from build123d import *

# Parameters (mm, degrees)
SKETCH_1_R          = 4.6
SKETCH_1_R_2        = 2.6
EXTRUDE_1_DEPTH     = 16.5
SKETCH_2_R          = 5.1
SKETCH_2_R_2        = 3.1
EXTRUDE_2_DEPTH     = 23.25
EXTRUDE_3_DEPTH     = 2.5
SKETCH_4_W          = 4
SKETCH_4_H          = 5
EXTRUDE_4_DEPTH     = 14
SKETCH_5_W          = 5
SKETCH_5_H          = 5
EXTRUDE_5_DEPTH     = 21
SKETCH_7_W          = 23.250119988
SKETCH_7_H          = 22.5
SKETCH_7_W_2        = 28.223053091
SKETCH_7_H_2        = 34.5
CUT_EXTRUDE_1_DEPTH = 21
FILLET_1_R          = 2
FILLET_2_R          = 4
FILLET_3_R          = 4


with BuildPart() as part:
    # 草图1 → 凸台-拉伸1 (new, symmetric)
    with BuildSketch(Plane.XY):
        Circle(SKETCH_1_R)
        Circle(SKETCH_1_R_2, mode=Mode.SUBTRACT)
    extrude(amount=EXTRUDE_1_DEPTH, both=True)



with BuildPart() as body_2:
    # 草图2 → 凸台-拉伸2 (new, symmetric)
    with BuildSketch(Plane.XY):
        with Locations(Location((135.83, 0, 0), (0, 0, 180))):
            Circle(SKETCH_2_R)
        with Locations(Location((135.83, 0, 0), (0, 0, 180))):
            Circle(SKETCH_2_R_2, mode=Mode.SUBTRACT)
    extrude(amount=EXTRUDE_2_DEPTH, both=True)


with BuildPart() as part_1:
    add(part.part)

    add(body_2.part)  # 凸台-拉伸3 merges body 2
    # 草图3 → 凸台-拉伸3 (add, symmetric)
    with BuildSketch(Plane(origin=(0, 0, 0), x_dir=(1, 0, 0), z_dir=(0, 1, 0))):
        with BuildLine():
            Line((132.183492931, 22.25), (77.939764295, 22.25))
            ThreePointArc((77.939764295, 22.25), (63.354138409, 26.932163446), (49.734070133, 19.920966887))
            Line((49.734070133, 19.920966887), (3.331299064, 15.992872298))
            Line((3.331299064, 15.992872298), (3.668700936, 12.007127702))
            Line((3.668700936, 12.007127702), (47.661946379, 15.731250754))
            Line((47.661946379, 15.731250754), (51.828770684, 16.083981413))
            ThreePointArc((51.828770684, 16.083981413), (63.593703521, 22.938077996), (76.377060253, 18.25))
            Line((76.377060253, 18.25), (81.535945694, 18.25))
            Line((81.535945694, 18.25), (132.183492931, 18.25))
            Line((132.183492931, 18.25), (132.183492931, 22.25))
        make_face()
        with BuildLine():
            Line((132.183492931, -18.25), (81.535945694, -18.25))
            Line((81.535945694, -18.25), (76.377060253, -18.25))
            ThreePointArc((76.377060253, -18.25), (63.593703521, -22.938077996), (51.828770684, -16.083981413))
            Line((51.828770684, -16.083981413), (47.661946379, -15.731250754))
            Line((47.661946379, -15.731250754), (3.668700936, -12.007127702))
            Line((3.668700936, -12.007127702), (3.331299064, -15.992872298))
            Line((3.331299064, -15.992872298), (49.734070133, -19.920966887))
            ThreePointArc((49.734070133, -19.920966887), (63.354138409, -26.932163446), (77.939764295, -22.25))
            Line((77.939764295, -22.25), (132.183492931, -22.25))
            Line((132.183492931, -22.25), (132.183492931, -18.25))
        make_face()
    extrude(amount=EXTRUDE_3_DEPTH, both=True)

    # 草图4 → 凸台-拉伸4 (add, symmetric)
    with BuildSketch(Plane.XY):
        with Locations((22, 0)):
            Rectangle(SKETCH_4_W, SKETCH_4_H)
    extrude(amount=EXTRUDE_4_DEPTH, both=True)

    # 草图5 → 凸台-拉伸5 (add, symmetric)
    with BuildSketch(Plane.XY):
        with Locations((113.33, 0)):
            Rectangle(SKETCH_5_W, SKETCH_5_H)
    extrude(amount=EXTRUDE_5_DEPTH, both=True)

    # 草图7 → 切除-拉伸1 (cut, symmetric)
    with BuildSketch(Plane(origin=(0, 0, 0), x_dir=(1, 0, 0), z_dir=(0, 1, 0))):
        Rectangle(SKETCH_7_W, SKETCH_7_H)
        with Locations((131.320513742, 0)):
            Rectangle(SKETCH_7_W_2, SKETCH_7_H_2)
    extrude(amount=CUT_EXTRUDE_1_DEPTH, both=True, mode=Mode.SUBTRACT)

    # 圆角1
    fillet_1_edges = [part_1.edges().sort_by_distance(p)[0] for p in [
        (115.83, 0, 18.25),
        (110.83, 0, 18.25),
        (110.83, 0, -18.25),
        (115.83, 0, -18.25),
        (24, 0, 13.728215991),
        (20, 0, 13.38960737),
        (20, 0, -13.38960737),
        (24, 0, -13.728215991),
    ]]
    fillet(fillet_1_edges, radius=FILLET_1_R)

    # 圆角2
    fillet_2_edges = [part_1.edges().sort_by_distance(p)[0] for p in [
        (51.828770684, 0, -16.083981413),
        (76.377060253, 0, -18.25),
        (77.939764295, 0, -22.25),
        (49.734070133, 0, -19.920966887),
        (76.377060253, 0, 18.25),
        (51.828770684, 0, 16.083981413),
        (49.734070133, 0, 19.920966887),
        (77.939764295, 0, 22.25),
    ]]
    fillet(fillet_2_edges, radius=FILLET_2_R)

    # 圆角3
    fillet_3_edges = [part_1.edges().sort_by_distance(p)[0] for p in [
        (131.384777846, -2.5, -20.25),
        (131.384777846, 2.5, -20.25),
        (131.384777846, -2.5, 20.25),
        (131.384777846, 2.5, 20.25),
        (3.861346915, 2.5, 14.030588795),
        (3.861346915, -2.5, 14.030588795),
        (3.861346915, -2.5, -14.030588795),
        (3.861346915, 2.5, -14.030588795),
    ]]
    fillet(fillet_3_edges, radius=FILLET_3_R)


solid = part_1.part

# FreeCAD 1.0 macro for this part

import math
import FreeCAD as App
import Part
import Sketcher
from FreeCAD import Vector


def edges_at(feature, points):
    """Names of the edges that pass closest to the given points."""
    edges = feature.Shape.Edges
    near = lambda p: min(range(len(edges)), key=lambda i: edges[i].distToShape(Part.Vertex(*p))[0])
    return sorted({f"Edge{near(p) + 1}" for p in points})

doc = App.newDocument("Part")
body = doc.addObject("PartDesign::Body", "Body")

# Sketch on XY plane
sketch1 = body.newObject("Sketcher::SketchObject", "Sketch")
sketch1.AttachmentSupport = (doc.getObject("XY_Plane"), [""])
sketch1.MapMode = "FlatFace"
sketch1.addGeometry([
    Part.Circle(Vector(0, 0, 0), Vector(0, 0, 1), 4.6),
    Part.Circle(Vector(0, 0, 0), Vector(0, 0, 1), 2.6),
], False)
sketch1.addConstraint([
    Sketcher.Constraint("Coincident", 0, 3, -1, 1),
    Sketcher.Constraint("Coincident", 1, 3, -1, 1),
    Sketcher.Constraint("Diameter", 0, 9.2),
    Sketcher.Constraint("Diameter", 1, 5.2),
])
pad1 = body.newObject("PartDesign::Pad", "Pad")
pad1.Profile = sketch1
pad1.Length = 33
pad1.Midplane = True
body2 = doc.addObject("PartDesign::Body", "Body001")

# Sketch on XY plane
sketch2 = body2.newObject("Sketcher::SketchObject", "Sketch001")
sketch2.AttachmentSupport = (doc.getObject("XY_Plane001"), [""])
sketch2.MapMode = "FlatFace"
sketch2.addGeometry([
    Part.Circle(Vector(135.8, 0, 0), Vector(0, 0, 1), 5.1),
    Part.Circle(Vector(135.8, 0, 0), Vector(0, 0, 1), 3.1),
], False)
sketch2.addConstraint([
    Sketcher.Constraint("Coincident", 1, 3, 0, 3),
    Sketcher.Constraint("PointOnObject", 0, 3, -1),
    Sketcher.Constraint("Diameter", 0, 10.2),
    Sketcher.Constraint("Diameter", 1, 6.2),
    Sketcher.Constraint("DistanceX", -1, 1, 0, 3, 135.83),
])
pad2 = body2.newObject("PartDesign::Pad", "Pad001")
pad2.Profile = sketch2
pad2.Length = 46.5
pad2.Midplane = True
body.AllowCompound = True
doc.recompute()

boolean = body.newObject("PartDesign::Boolean", "Boolean")
boolean.Type = "Fuse"
boolean.addObjects([body2])

# Sketch on XZ plane
sketch3 = body.newObject("Sketcher::SketchObject", "Sketch002")
sketch3.AttachmentSupport = (doc.getObject("XZ_Plane"), [""])
sketch3.MapMode = "FlatFace"
sketch3.addGeometry([
    Part.LineSegment(Vector(132.2, -22.2, 0), Vector(77.9, -22.2, 0)),  # 0
    Part.ArcOfCircle(Part.Circle(Vector(65, -7, 0), Vector(0, 0, 1), 20), math.radians(-140), math.radians(-50)),  # 1
    Part.LineSegment(Vector(49.7, -19.9, 0), Vector(3.3, -16, 0)),  # 2
    Part.LineSegment(Vector(3.3, -16, 0), Vector(3.7, -12, 0)),  # 3
    Part.LineSegment(Vector(3.7, -12, 0), Vector(47.7, -15.7, 0)),  # 4
    Part.LineSegment(Vector(47.7, -15.7, 0), Vector(51.8, -16.1, 0)),  # 5
    Part.ArcOfCircle(Part.Circle(Vector(65, -7, 0), Vector(0, 0, 1), 16), math.radians(-145), math.radians(-45)),  # 6
    Part.LineSegment(Vector(76.4, -18.2, 0), Vector(132.2, -18.2, 0)),  # 7
    Part.LineSegment(Vector(132.2, -18.2, 0), Vector(132.2, -22.2, 0)),  # 8
    Part.LineSegment(Vector(132.2, 18.2, 0), Vector(76.4, 18.2, 0)),  # 9
    Part.ArcOfCircle(Part.Circle(Vector(65, 7, 0), Vector(0, 0, 1), 16), math.radians(45), math.radians(145)),  # 10
    Part.LineSegment(Vector(51.8, 16.1, 0), Vector(47.7, 15.7, 0)),  # 11
    Part.LineSegment(Vector(47.7, 15.7, 0), Vector(3.7, 12, 0)),  # 12
    Part.LineSegment(Vector(3.7, 12, 0), Vector(3.3, 16, 0)),  # 13
    Part.LineSegment(Vector(3.3, 16, 0), Vector(49.7, 19.9, 0)),  # 14
    Part.ArcOfCircle(Part.Circle(Vector(65, 7, 0), Vector(0, 0, 1), 20), math.radians(50), math.radians(140)),  # 15
    Part.LineSegment(Vector(77.9, 22.2, 0), Vector(132.2, 22.2, 0)),  # 16
    Part.LineSegment(Vector(132.2, 22.2, 0), Vector(132.2, 18.2, 0)),  # 17
], False)
sketch3.addConstraint([
    Sketcher.Constraint("Coincident", 0, 2, 1, 2),
    Sketcher.Constraint("Coincident", 1, 1, 2, 1),
    Sketcher.Constraint("Coincident", 2, 2, 3, 1),
    Sketcher.Constraint("Coincident", 3, 2, 4, 1),
    Sketcher.Constraint("Coincident", 4, 2, 5, 1),
    Sketcher.Constraint("Coincident", 5, 2, 6, 1),
    Sketcher.Constraint("Coincident", 6, 2, 7, 1),
    Sketcher.Constraint("Coincident", 7, 2, 8, 1),
    Sketcher.Constraint("Coincident", 8, 2, 0, 1),
    Sketcher.Constraint("Coincident", 9, 2, 10, 1),
    Sketcher.Constraint("Coincident", 10, 2, 11, 1),
    Sketcher.Constraint("Coincident", 11, 2, 12, 1),
    Sketcher.Constraint("Coincident", 12, 2, 13, 1),
    Sketcher.Constraint("Coincident", 13, 2, 14, 1),
    Sketcher.Constraint("Coincident", 14, 2, 15, 2),
    Sketcher.Constraint("Coincident", 15, 1, 16, 1),
    Sketcher.Constraint("Coincident", 16, 2, 17, 1),
    Sketcher.Constraint("Coincident", 17, 2, 9, 1),
    Sketcher.Constraint("Horizontal", 0),
    Sketcher.Constraint("Horizontal", 7),
    Sketcher.Constraint("Vertical", 8),
    Sketcher.Constraint("Horizontal", 9),
    Sketcher.Constraint("Horizontal", 16),
    Sketcher.Constraint("Vertical", 17),
    Sketcher.Constraint("Coincident", 6, 3, 1, 3),
    Sketcher.Constraint("Coincident", 15, 3, 10, 3),
    Sketcher.Constraint("Equal", 6, 10),
    Sketcher.Constraint("Equal", 1, 15),
    Sketcher.Constraint("Symmetric", 1, 3, 10, 3, -1),
    Sketcher.Constraint("Symmetric", 4, 2, 11, 2, -1),
    Sketcher.Constraint("Symmetric", 3, 2, 12, 2, -1),
    Sketcher.Constraint("Symmetric", 2, 2, 13, 2, -1),
    Sketcher.Constraint("Symmetric", 8, 2, 16, 2, -1),
    Sketcher.Constraint("Perpendicular", 2, 3),
    Sketcher.Constraint("Perpendicular", 3, 4),
    Sketcher.Constraint("Parallel", 4, 5),
    Sketcher.Constraint("Parallel", 11, 12),
    Sketcher.Constraint("Perpendicular", 13, 14),
    Sketcher.Constraint("Vertical", 6, 2, 9, 2),
    Sketcher.Constraint("Radius", 1, 20.0),
    Sketcher.Constraint("Radius", 6, 16.0),
    Sketcher.Constraint("DistanceY", 8, 2, 8, 1, 4.0),
    Sketcher.Constraint("Distance", 3, 4.0),
    Sketcher.Constraint("DistanceX", -1, 1, 1, 3, 65.0),
    Sketcher.Constraint("DistanceY", 1, 3, -1, 1, 7.0),
    Sketcher.Constraint("DistanceY", 2, 2, 12, 2, 28.0),
    Sketcher.Constraint("DistanceY", 6, 2, 9, 2, 36.5),
    Sketcher.Constraint("DistanceX", 0, 2, 0, 1, 54.243729),
    Sketcher.Constraint("DistanceX", -1, 1, 2, 2, 3.331299),
    Sketcher.Constraint("DistanceX", -1, 1, 3, 2, 3.668701),
    Sketcher.Constraint("Distance", 4, 44.150592),
])
pad3 = body.newObject("PartDesign::Pad", "Pad002")
pad3.Profile = sketch3
pad3.Length = 5
pad3.Midplane = True

# Sketch on XY plane
sketch4 = body.newObject("Sketcher::SketchObject", "Sketch003")
sketch4.AttachmentSupport = (doc.getObject("XY_Plane"), [""])
sketch4.MapMode = "FlatFace"
sketch4.addGeometry([
    Part.LineSegment(Vector(20, 2.5, 0), Vector(20, -2.5, 0)),
    Part.LineSegment(Vector(20, -2.5, 0), Vector(24, -2.5, 0)),
    Part.LineSegment(Vector(24, -2.5, 0), Vector(24, 2.5, 0)),
    Part.LineSegment(Vector(24, 2.5, 0), Vector(20, 2.5, 0)),
], False)
sketch4.addConstraint([
    Sketcher.Constraint("Coincident", 0, 2, 1, 1),
    Sketcher.Constraint("Coincident", 1, 2, 2, 1),
    Sketcher.Constraint("Coincident", 2, 2, 3, 1),
    Sketcher.Constraint("Coincident", 3, 2, 0, 1),
    Sketcher.Constraint("Vertical", 0),
    Sketcher.Constraint("Horizontal", 1),
    Sketcher.Constraint("Vertical", 2),
    Sketcher.Constraint("Horizontal", 3),
    Sketcher.Constraint("DistanceX", 1, 1, 1, 2, 4.0),
    Sketcher.Constraint("DistanceY", 0, 2, 0, 1, 5.0),
    Sketcher.Constraint("DistanceX", -1, 1, 0, 2, 20.0),
    Sketcher.Constraint("DistanceY", 0, 2, -1, 1, 2.5),
])
pad4 = body.newObject("PartDesign::Pad", "Pad003")
pad4.Profile = sketch4
pad4.Length = 28
pad4.Midplane = True

# Sketch on XY plane
sketch5 = body.newObject("Sketcher::SketchObject", "Sketch004")
sketch5.AttachmentSupport = (doc.getObject("XY_Plane"), [""])
sketch5.MapMode = "FlatFace"
sketch5.addGeometry([
    Part.LineSegment(Vector(111, 2, 0), Vector(111, -2, 0)),
    Part.LineSegment(Vector(111, -2, 0), Vector(116, -2, 0)),
    Part.LineSegment(Vector(116, -2, 0), Vector(116, 2, 0)),
    Part.LineSegment(Vector(116, 2, 0), Vector(111, 2, 0)),
], False)
sketch5.addConstraint([
    Sketcher.Constraint("Coincident", 0, 2, 1, 1),
    Sketcher.Constraint("Coincident", 1, 2, 2, 1),
    Sketcher.Constraint("Coincident", 2, 2, 3, 1),
    Sketcher.Constraint("Coincident", 3, 2, 0, 1),
    Sketcher.Constraint("Vertical", 0),
    Sketcher.Constraint("Horizontal", 1),
    Sketcher.Constraint("Vertical", 2),
    Sketcher.Constraint("Horizontal", 3),
    Sketcher.Constraint("Equal", 3, 0),
    Sketcher.Constraint("DistanceX", 1, 1, 1, 2, 5.0),
    Sketcher.Constraint("DistanceY", 0, 2, -1, 1, 2.5),
    Sketcher.Constraint("DistanceX", -1, 1, 0, 2, 110.83),
])
pad5 = body.newObject("PartDesign::Pad", "Pad004")
pad5.Profile = sketch5
pad5.Length = 42
pad5.Midplane = True

# Sketch on XZ plane
sketch6 = body.newObject("Sketcher::SketchObject", "Sketch005")
sketch6.AttachmentSupport = (doc.getObject("XZ_Plane"), [""])
sketch6.MapMode = "FlatFace"
sketch6.addGeometry([
    Part.LineSegment(Vector(-12, -11, 0), Vector(-12, 11, 0)),  # 0
    Part.LineSegment(Vector(-12, 11, 0), Vector(12, 11, 0)),  # 1
    Part.LineSegment(Vector(12, 11, 0), Vector(12, -11, 0)),  # 2
    Part.LineSegment(Vector(12, -11, 0), Vector(-12, -11, 0)),  # 3
    Part.LineSegment(Vector(117, -17, 0), Vector(117, 17, 0)),  # 4
    Part.LineSegment(Vector(117, 17, 0), Vector(145, 17, 0)),  # 5
    Part.LineSegment(Vector(145, 17, 0), Vector(145, -17, 0)),  # 6
    Part.LineSegment(Vector(145, -17, 0), Vector(117, -17, 0)),  # 7
], False)
sketch6.addConstraint([
    Sketcher.Constraint("Coincident", 0, 2, 1, 1),
    Sketcher.Constraint("Coincident", 1, 2, 2, 1),
    Sketcher.Constraint("Coincident", 2, 2, 3, 1),
    Sketcher.Constraint("Coincident", 3, 2, 0, 1),
    Sketcher.Constraint("Coincident", 4, 2, 5, 1),
    Sketcher.Constraint("Coincident", 5, 2, 6, 1),
    Sketcher.Constraint("Coincident", 6, 2, 7, 1),
    Sketcher.Constraint("Coincident", 7, 2, 4, 1),
    Sketcher.Constraint("Vertical", 0),
    Sketcher.Constraint("Horizontal", 1),
    Sketcher.Constraint("Vertical", 2),
    Sketcher.Constraint("Horizontal", 3),
    Sketcher.Constraint("Vertical", 4),
    Sketcher.Constraint("Horizontal", 5),
    Sketcher.Constraint("Vertical", 6),
    Sketcher.Constraint("Horizontal", 7),
    Sketcher.Constraint("Symmetric", 0, 2, 2, 2, -1, 1),
    Sketcher.Constraint("DistanceY", 0, 1, 0, 2, 22.5),
    Sketcher.Constraint("DistanceY", 4, 1, 4, 2, 34.5),
    Sketcher.Constraint("DistanceY", 1, 2, 4, 2, 6.0),
    Sketcher.Constraint("DistanceX", 1, 1, 1, 2, 23.25012),
    Sketcher.Constraint("DistanceX", 0, 2, 5, 2, 157.0571),
    Sketcher.Constraint("DistanceX", 5, 1, 5, 2, 28.223053),
])
pocket1 = body.newObject("PartDesign::Pocket", "Pocket")
pocket1.Profile = sketch6
pocket1.Length = 42
pocket1.Midplane = True
doc.recompute()

fillet = body.newObject("PartDesign::Fillet", "Fillet")
fillet.Base = (pocket1, edges_at(pocket1, [
    (115.83, 0, 18.25),
    (110.83, 0, 18.25),
    (110.83, 0, -18.25),
    (115.83, 0, -18.25),
    (24, 0, 13.728),
    (20, 0, 13.39),
    (20, 0, -13.39),
    (24, 0, -13.728),
]))
fillet.Radius = 2
doc.recompute()

fillet2 = body.newObject("PartDesign::Fillet", "Fillet001")
fillet2.Base = (fillet, edges_at(fillet, [
    (51.829, 0, -16.084),
    (76.377, 0, -18.25),
    (77.94, 0, -22.25),
    (49.734, 0, -19.921),
    (76.377, 0, 18.25),
    (51.829, 0, 16.084),
    (49.734, 0, 19.921),
    (77.94, 0, 22.25),
]))
fillet2.Radius = 4
doc.recompute()

fillet3 = body.newObject("PartDesign::Fillet", "Fillet002")
fillet3.Base = (fillet2, edges_at(fillet2, [
    (131.385, -2.5, -20.25),
    (131.385, 2.5, -20.25),
    (131.385, -2.5, 20.25),
    (131.385, 2.5, 20.25),
    (3.861, 2.5, 14.031),
    (3.861, -2.5, 14.031),
    (3.861, -2.5, -14.031),
    (3.861, 2.5, -14.031),
]))
fillet3.Radius = 4

doc.recompute()
